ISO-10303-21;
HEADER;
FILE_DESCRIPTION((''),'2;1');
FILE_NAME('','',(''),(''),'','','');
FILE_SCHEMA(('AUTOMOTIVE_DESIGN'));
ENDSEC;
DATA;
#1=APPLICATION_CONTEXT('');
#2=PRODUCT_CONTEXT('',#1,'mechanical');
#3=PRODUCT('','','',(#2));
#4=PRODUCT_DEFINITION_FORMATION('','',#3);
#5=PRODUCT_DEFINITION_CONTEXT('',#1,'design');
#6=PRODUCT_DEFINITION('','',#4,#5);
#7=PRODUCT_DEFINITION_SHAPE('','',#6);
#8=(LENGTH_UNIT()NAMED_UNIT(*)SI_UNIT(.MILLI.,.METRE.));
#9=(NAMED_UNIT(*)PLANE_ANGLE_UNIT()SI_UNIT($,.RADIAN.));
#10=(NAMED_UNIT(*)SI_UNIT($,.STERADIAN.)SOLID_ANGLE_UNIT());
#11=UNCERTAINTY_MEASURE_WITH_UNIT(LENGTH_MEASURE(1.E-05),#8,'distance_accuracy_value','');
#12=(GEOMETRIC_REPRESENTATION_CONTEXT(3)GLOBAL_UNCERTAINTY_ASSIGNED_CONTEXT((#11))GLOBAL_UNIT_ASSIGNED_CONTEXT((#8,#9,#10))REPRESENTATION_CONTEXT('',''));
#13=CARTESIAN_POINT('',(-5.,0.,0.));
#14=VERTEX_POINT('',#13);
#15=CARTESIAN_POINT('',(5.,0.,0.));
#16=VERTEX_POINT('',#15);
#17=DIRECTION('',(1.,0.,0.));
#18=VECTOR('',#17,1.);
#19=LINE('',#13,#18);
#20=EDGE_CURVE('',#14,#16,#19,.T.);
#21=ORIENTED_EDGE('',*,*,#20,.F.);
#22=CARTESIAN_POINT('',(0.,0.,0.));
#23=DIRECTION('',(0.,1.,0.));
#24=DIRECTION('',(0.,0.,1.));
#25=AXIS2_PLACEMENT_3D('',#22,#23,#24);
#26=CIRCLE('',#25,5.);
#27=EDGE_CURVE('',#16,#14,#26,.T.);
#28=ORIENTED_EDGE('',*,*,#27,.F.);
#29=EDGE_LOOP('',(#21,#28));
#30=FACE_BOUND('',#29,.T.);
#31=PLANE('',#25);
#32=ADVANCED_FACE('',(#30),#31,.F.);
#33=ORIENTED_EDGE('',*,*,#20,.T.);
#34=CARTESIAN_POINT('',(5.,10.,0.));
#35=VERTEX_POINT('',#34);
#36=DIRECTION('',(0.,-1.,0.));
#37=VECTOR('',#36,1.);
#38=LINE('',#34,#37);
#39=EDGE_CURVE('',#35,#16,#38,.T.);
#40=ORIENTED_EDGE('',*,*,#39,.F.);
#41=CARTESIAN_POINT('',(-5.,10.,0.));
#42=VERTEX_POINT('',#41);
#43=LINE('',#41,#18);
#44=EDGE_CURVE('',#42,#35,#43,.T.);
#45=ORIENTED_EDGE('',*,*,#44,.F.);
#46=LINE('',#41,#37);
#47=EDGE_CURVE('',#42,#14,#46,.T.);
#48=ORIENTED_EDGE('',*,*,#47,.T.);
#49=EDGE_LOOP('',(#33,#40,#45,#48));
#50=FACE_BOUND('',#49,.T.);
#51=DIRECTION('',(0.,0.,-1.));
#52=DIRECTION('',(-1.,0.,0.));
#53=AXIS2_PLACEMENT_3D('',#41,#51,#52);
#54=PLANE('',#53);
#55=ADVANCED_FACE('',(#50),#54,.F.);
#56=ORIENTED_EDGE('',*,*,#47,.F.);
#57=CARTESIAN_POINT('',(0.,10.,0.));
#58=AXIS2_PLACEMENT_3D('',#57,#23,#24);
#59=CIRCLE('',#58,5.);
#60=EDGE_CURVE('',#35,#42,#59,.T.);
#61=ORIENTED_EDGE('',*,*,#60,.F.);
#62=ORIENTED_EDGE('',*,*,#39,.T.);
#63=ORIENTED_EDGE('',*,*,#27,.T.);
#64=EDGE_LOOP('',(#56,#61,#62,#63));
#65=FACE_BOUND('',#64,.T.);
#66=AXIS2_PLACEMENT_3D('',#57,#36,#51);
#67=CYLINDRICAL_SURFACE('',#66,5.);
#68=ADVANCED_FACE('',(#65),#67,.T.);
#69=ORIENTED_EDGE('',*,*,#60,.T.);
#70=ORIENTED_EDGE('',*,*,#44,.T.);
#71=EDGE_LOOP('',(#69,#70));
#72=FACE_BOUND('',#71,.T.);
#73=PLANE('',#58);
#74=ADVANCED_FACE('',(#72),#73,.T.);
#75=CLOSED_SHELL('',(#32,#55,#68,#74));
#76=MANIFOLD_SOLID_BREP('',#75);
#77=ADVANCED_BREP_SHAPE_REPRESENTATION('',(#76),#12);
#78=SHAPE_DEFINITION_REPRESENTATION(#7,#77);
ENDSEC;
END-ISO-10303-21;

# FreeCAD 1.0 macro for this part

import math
import FreeCAD as App
import Part
import Sketcher
Q = App.Units.Quantity

doc = App.newDocument("Part")
params = doc.addObject("Spreadsheet::Sheet", "Params")
for row, (alias, value) in enumerate([
    ("sketch1_radius", "5 mm"),
    ("pad1_length", "10 mm"),
], start=1):
    params.set(f"A{row}", alias)
    params.set(f"B{row}", "=" + value)
    params.setAlias(f"B{row}", alias)

body = doc.addObject("PartDesign::Body", "Body")

sketch1 = body.newObject("Sketcher::SketchObject", "Sketch")
sketch1.AttachmentSupport = (doc.getObject("XZ_Plane"), [""])
sketch1.MapMode = "FlatFace"
sketch1.addGeometry(Part.LineSegment(App.Vector(-5, 0, 0), App.Vector(5, 0, 0)), False)
sketch1.addGeometry(Part.ArcOfCircle(Part.Circle(App.Vector(0, 0, 0), App.Vector(0, 0, 1), 5), math.radians(180), math.radians(360)), False)
sketch1.addConstraint(Sketcher.Constraint("Coincident", 0, 1, 1, 1))
sketch1.addConstraint(Sketcher.Constraint("Coincident", 1, 2, 0, 2))
sketch1.addConstraint(Sketcher.Constraint("Horizontal", 0))
sketch1.addConstraint(Sketcher.Constraint("Coincident", 1, 3, -1, 1))
sketch1.addConstraint(Sketcher.Constraint("PointOnObject", 0, 1, -1))
sketch1.addConstraint(Sketcher.Constraint("Radius", 1, Q("5 mm")))
sketch1.setExpression("Constraints[5]", "Params.sketch1_radius")
pad1 = body.newObject("PartDesign::Pad", "Pad")
pad1.Profile = sketch1
pad1.setExpression("Length", "Params.pad1_length")
pad1.Reversed = True

doc.recompute()
